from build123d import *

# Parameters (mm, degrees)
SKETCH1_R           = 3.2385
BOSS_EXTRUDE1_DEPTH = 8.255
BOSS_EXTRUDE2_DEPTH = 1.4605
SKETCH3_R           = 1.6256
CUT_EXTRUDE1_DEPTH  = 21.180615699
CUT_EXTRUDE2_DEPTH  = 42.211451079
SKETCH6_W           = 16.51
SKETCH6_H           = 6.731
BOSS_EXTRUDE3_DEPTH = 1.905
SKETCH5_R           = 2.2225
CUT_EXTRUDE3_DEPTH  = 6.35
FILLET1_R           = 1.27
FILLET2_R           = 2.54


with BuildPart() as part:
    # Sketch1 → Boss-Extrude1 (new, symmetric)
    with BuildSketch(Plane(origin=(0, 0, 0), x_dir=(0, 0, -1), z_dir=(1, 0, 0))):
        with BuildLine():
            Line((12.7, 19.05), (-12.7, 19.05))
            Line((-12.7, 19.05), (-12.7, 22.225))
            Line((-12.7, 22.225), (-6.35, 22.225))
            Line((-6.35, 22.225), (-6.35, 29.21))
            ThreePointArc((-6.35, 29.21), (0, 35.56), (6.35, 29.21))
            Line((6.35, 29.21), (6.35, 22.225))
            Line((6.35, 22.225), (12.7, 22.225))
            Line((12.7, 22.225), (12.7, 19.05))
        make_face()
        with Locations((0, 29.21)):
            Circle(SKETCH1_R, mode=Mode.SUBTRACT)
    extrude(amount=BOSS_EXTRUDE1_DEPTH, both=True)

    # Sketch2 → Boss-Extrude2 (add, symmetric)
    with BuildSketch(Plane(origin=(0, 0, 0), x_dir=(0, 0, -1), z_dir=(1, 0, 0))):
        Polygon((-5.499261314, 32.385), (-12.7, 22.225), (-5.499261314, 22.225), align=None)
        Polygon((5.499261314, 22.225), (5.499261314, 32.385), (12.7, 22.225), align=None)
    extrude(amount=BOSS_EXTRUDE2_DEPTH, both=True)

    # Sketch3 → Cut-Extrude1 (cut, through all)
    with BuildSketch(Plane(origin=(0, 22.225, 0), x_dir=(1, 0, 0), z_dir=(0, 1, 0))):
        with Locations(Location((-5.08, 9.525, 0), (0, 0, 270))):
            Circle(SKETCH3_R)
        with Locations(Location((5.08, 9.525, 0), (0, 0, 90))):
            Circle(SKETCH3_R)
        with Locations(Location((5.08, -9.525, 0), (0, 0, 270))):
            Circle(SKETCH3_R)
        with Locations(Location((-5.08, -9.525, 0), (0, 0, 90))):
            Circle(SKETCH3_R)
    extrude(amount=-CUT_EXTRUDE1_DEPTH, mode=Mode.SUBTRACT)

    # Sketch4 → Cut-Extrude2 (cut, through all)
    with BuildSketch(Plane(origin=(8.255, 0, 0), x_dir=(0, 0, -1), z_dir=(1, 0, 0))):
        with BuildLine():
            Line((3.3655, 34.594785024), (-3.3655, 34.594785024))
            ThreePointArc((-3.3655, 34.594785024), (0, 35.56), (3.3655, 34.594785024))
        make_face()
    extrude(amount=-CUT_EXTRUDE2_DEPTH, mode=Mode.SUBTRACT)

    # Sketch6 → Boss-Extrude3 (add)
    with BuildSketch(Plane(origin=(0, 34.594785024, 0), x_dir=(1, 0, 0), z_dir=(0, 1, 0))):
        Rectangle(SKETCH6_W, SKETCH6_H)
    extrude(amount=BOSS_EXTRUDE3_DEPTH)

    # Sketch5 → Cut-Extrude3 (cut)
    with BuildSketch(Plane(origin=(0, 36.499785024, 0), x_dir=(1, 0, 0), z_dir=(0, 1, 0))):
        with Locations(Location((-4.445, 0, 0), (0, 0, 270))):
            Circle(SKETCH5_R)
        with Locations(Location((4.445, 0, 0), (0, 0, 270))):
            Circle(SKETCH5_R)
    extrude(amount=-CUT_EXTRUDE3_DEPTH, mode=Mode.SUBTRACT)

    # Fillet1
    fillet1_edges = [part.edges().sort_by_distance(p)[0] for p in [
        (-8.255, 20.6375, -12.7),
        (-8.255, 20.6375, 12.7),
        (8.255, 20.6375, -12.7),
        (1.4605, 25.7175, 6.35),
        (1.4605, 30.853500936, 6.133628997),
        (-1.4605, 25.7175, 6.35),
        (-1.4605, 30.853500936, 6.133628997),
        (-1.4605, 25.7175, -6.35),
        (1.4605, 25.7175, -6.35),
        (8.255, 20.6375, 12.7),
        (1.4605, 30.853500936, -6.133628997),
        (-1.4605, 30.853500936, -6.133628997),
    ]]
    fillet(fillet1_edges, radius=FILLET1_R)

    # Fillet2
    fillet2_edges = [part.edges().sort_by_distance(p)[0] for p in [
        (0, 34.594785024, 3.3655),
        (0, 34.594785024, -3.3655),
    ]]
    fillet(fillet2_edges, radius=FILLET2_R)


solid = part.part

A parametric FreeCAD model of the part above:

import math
import FreeCAD as App
import Part
import Sketcher

V = App.Vector
Q = App.Units.Quantity


def edges_at(feature, points):
    """Names of the edges that pass closest to the given points."""
    edges = feature.Shape.Edges
    near = lambda p: min(range(len(edges)), key=lambda i: edges[i].distToShape(Part.Vertex(*p))[0])
    return sorted({f"Edge{near(p) + 1}" for p in points})


def add_polygon(sketch, points):
    """Adds a closed chain of lines whose ends are joined by coincident constraints."""
    first, n = sketch.GeometryCount, len(points)
    for a, b in zip(points, points[1:] + points[:1]):
        sketch.addGeometry(Part.LineSegment(App.Vector(*a, 0), App.Vector(*b, 0)), False)
    for i in range(n):
        sketch.addConstraint(Sketcher.Constraint("Coincident", first + i, 2, first + (i + 1) % n, 1))

doc = App.newDocument("Part")
body = doc.addObject("PartDesign::Body", "Body")

sketch1 = body.newObject("Sketcher::SketchObject", "Sketch")
sketch1.AttachmentSupport = (doc.getObject("YZ_Plane"), [""])
sketch1.MapMode = "FlatFace"
sketch1.addGeometry(Part.LineSegment(V(19.1, 12.7, 0), V(19.1, -12.7, 0)), False)
sketch1.addGeometry(Part.LineSegment(V(19.1, -12.7, 0), V(22.2, -12.7, 0)), False)
sketch1.addGeometry(Part.LineSegment(V(22.2, -12.7, 0), V(22.2, -6.3, 0)), False)
sketch1.addGeometry(Part.LineSegment(V(22.2, -6.3, 0), V(29.2, -6.3, 0)), False)
sketch1.addGeometry(Part.ArcOfCircle(Part.Circle(V(29.2, 0, 0), V(0, 0, 1), 6.3), math.radians(-90), math.radians(90)), False)
sketch1.addGeometry(Part.LineSegment(V(29.2, 6.3, 0), V(22.2, 6.3, 0)), False)
sketch1.addGeometry(Part.LineSegment(V(22.2, 6.3, 0), V(22.2, 12.7, 0)), False)
sketch1.addGeometry(Part.LineSegment(V(22.2, 12.7, 0), V(19.1, 12.7, 0)), False)
sketch1.addGeometry(Part.Circle(V(29.2, 0, 0), V(0, 0, 1), 3.2), False)
sketch1.addConstraint(Sketcher.Constraint("Coincident", 0, 2, 1, 1))
sketch1.addConstraint(Sketcher.Constraint("Coincident", 1, 2, 2, 1))
sketch1.addConstraint(Sketcher.Constraint("Coincident", 2, 2, 3, 1))
sketch1.addConstraint(Sketcher.Constraint("Tangent", 3, 2, 4, 1))
sketch1.addConstraint(Sketcher.Constraint("Tangent", 4, 2, 5, 1))
sketch1.addConstraint(Sketcher.Constraint("Coincident", 5, 2, 6, 1))
sketch1.addConstraint(Sketcher.Constraint("Coincident", 6, 2, 7, 1))
sketch1.addConstraint(Sketcher.Constraint("Coincident", 7, 2, 0, 1))
sketch1.addConstraint(Sketcher.Constraint("Vertical", 0))
sketch1.addConstraint(Sketcher.Constraint("Horizontal", 1))
sketch1.addConstraint(Sketcher.Constraint("Vertical", 2))
sketch1.addConstraint(Sketcher.Constraint("Horizontal", 3))
sketch1.addConstraint(Sketcher.Constraint("Horizontal", 5))
sketch1.addConstraint(Sketcher.Constraint("Vertical", 6))
sketch1.addConstraint(Sketcher.Constraint("Horizontal", 7))
sketch1.addConstraint(Sketcher.Constraint("Coincident", 8, 3, 4, 3))
sketch1.addConstraint(Sketcher.Constraint("Symmetric", 2, 2, 5, 2, -1))
sketch1.addConstraint(Sketcher.Constraint("Equal", 2, 6))
sketch1.addConstraint(Sketcher.Constraint("DistanceY", 0, 2, 0, 1, Q("1 in")))
sketch1.addConstraint(Sketcher.Constraint("Radius", 4, Q("0.25 in")))
sketch1.addConstraint(Sketcher.Constraint("Diameter", 8, Q("0.255 in")))
sketch1.addConstraint(Sketcher.Constraint("DistanceX", 0, 2, 4, 3, Q("0.4 in")))
sketch1.addConstraint(Sketcher.Constraint("DistanceX", 1, 1, 1, 2, Q("0.125 in")))
sketch1.addConstraint(Sketcher.Constraint("DistanceX", -1, 1, 4, 3, Q("1.15 in")))
pad1 = body.newObject("PartDesign::Pad", "Pad")
pad1.Profile = sketch1
pad1.Length = Q("0.65 in")
pad1.Midplane = True

sketch2 = body.newObject("Sketcher::SketchObject", "Sketch001")
sketch2.AttachmentSupport = (doc.getObject("YZ_Plane"), [""])
sketch2.MapMode = "FlatFace"
add_polygon(sketch2, [(32, 5), (22, 13), (22, 5)])
add_polygon(sketch2, [(32, -5), (22, -5), (22, -13)])
sketch2.addConstraint(Sketcher.Constraint("Vertical", 1))
sketch2.addConstraint(Sketcher.Constraint("Horizontal", 2))
sketch2.addConstraint(Sketcher.Constraint("Horizontal", 3))
sketch2.addConstraint(Sketcher.Constraint("Vertical", 4))
sketch2.addConstraint(Sketcher.Constraint("Symmetric", 1, 2, 3, 2, -1))
sketch2.addConstraint(Sketcher.Constraint("Vertical", 2, 2, 5, 2))
sketch2.addConstraint(Sketcher.Constraint("Equal", 1, 4))
sketch2.addConstraint(Sketcher.Constraint("DistanceX", 2, 1, 2, 2, Q("0.4 in")))
sketch2.addConstraint(Sketcher.Constraint("DistanceY", 4, 2, 0, 2, Q("1 in")))
sketch2.addConstraint(Sketcher.Constraint("DistanceX", -1, 1, 0, 2, Q("0.875 in")))
sketch2.addConstraint(Sketcher.Constraint("DistanceY", 1, 2, 1, 1, 7.200739))
pad2 = body.newObject("PartDesign::Pad", "Pad001")
pad2.Profile = sketch2
pad2.Length = Q("0.115 in")
pad2.Midplane = True

sketch3 = body.newObject("Sketcher::SketchObject", "Sketch002")
sketch3.AttachmentSupport = (doc.getObject("XZ_Plane"), [""])
sketch3.MapMode = "FlatFace"
sketch3.AttachmentOffset = App.Placement(V(0, 0, -0.875 * 25.4), App.Rotation())
sketch3.addGeometry(Part.Circle(V(-5.1, -9.5, 0), V(0, 0, 1), 1.6), False)
sketch3.addGeometry(Part.Circle(V(5.1, -9.5, 0), V(0, 0, 1), 1.6), False)
sketch3.addGeometry(Part.Circle(V(5.1, 9.5, 0), V(0, 0, 1), 1.6), False)
sketch3.addGeometry(Part.Circle(V(-5.1, 9.5, 0), V(0, 0, 1), 1.6), False)
sketch3.addConstraint(Sketcher.Constraint("Equal", 0, 1))
sketch3.addConstraint(Sketcher.Constraint("Equal", 1, 2))
sketch3.addConstraint(Sketcher.Constraint("Equal", 2, 3))
sketch3.addConstraint(Sketcher.Constraint("Symmetric", 0, 3, 2, 3, -1, 1))
sketch3.addConstraint(Sketcher.Constraint("Symmetric", 1, 3, 3, 3, -1, 1))
sketch3.addConstraint(Sketcher.Constraint("Symmetric", 0, 3, 1, 3, -2))
sketch3.addConstraint(Sketcher.Constraint("Diameter", 0, Q("0.128 in")))
sketch3.addConstraint(Sketcher.Constraint("DistanceX", 0, 3, -1, 1, Q("0.2 in")))
sketch3.addConstraint(Sketcher.Constraint("DistanceY", 1, 3, 2, 3, Q("0.75 in")))
pocket1 = body.newObject("PartDesign::Pocket", "Pocket")
pocket1.Profile = sketch3
pocket1.Type = "ThroughAll"
pocket1.Reversed = True

sketch4 = body.newObject("Sketcher::SketchObject", "Sketch003")
sketch4.AttachmentSupport = (doc.getObject("YZ_Plane"), [""])
sketch4.MapMode = "FlatFace"
sketch4.AttachmentOffset = App.Placement(V(0, 0, 0.325 * 25.4), App.Rotation())
sketch4.addGeometry(Part.LineSegment(V(35, 3, 0), V(35, -3, 0)), False)
sketch4.addGeometry(Part.ArcOfCircle(Part.Circle(V(29, 0, 0), V(0, 0, 1), 6), math.radians(-32), math.radians(32)), False)
sketch4.addConstraint(Sketcher.Constraint("Coincident", 0, 1, 1, 2))
sketch4.addConstraint(Sketcher.Constraint("Coincident", 1, 1, 0, 2))
sketch4.addConstraint(Sketcher.Constraint("Vertical", 0))
sketch4.addConstraint(Sketcher.Constraint("PointOnObject", 1, 3, -1))
sketch4.addConstraint(Sketcher.Constraint("Radius", 1, Q("0.25 in")))
sketch4.addConstraint(Sketcher.Constraint("DistanceY", 0, 2, 0, 1, Q("0.265 in")))
sketch4.addConstraint(Sketcher.Constraint("DistanceX", -1, 1, 1, 3, Q("1.15 in")))
pocket2 = body.newObject("PartDesign::Pocket", "Pocket001")
pocket2.Profile = sketch4
pocket2.Type = "ThroughAll"

sketch5 = body.newObject("Sketcher::SketchObject", "Sketch004")
sketch5.AttachmentSupport = (doc.getObject("XZ_Plane"), [""])
sketch5.MapMode = "FlatFace"
sketch5.AttachmentOffset = App.Placement(V(0, 0, -34.594785), App.Rotation())
add_polygon(sketch5, [(-8, -3), (-8, 3), (8, 3), (8, -3)])
sketch5.addConstraint(Sketcher.Constraint("Vertical", 0))
sketch5.addConstraint(Sketcher.Constraint("Horizontal", 1))
sketch5.addConstraint(Sketcher.Constraint("Vertical", 2))
sketch5.addConstraint(Sketcher.Constraint("Horizontal", 3))
sketch5.addConstraint(Sketcher.Constraint("Symmetric", 0, 2, 2, 2, -1, 1))
sketch5.addConstraint(Sketcher.Constraint("DistanceX", 1, 1, 1, 2, Q("0.65 in")))
sketch5.addConstraint(Sketcher.Constraint("DistanceY", 0, 1, 0, 2, Q("0.265 in")))
pad3 = body.newObject("PartDesign::Pad", "Pad002")
pad3.Profile = sketch5
pad3.Length = Q("0.075 in")
pad3.Reversed = True

sketch6 = body.newObject("Sketcher::SketchObject", "Sketch005")
sketch6.AttachmentSupport = (doc.getObject("XZ_Plane"), [""])
sketch6.MapMode = "FlatFace"
sketch6.AttachmentOffset = App.Placement(V(0, 0, -36.499785), App.Rotation())
sketch6.addGeometry(Part.Circle(V(-4.4, 0, 0), V(0, 0, 1), 2.2), False)
sketch6.addGeometry(Part.Circle(V(4.4, 0, 0), V(0, 0, 1), 2.2), False)
sketch6.addConstraint(Sketcher.Constraint("Equal", 0, 1))
sketch6.addConstraint(Sketcher.Constraint("Symmetric", 0, 3, 1, 3, -1, 1))
sketch6.addConstraint(Sketcher.Constraint("PointOnObject", 0, 3, -1))
sketch6.addConstraint(Sketcher.Constraint("Diameter", 0, Q("0.175 in")))
sketch6.addConstraint(Sketcher.Constraint("DistanceX", 0, 3, 1, 3, Q("0.35 in")))
pocket3 = body.newObject("PartDesign::Pocket", "Pocket002")
pocket3.Profile = sketch6
pocket3.Length = Q("0.25 in")
pocket3.Reversed = True
doc.recompute()

fillet = body.newObject("PartDesign::Fillet", "Fillet")
fillet.Base = (pocket3, edges_at(pocket3, [
    (-8.255, 20.637, -12.7),
    (-8.255, 20.637, 12.7),
    (8.255, 20.637, -12.7),
    (1.46, 25.718, 6.35),
    (1.46, 30.854, 6.134),
    (-1.46, 25.718, 6.35),
    (-1.46, 30.854, 6.134),
    (-1.46, 25.718, -6.35),
    (1.46, 25.718, -6.35),
    (8.255, 20.637, 12.7),
    (1.46, 30.854, -6.134),
    (-1.46, 30.854, -6.134),
]))
fillet.Radius = Q("0.05 in")
doc.recompute()

fillet2 = body.newObject("PartDesign::Fillet", "Fillet001")
fillet2.Base = (fillet, edges_at(fillet, [(0, 34.595, 3.365), (0, 34.595, -3.365)]))
fillet2.Radius = Q("0.1 in")

doc.recompute()
